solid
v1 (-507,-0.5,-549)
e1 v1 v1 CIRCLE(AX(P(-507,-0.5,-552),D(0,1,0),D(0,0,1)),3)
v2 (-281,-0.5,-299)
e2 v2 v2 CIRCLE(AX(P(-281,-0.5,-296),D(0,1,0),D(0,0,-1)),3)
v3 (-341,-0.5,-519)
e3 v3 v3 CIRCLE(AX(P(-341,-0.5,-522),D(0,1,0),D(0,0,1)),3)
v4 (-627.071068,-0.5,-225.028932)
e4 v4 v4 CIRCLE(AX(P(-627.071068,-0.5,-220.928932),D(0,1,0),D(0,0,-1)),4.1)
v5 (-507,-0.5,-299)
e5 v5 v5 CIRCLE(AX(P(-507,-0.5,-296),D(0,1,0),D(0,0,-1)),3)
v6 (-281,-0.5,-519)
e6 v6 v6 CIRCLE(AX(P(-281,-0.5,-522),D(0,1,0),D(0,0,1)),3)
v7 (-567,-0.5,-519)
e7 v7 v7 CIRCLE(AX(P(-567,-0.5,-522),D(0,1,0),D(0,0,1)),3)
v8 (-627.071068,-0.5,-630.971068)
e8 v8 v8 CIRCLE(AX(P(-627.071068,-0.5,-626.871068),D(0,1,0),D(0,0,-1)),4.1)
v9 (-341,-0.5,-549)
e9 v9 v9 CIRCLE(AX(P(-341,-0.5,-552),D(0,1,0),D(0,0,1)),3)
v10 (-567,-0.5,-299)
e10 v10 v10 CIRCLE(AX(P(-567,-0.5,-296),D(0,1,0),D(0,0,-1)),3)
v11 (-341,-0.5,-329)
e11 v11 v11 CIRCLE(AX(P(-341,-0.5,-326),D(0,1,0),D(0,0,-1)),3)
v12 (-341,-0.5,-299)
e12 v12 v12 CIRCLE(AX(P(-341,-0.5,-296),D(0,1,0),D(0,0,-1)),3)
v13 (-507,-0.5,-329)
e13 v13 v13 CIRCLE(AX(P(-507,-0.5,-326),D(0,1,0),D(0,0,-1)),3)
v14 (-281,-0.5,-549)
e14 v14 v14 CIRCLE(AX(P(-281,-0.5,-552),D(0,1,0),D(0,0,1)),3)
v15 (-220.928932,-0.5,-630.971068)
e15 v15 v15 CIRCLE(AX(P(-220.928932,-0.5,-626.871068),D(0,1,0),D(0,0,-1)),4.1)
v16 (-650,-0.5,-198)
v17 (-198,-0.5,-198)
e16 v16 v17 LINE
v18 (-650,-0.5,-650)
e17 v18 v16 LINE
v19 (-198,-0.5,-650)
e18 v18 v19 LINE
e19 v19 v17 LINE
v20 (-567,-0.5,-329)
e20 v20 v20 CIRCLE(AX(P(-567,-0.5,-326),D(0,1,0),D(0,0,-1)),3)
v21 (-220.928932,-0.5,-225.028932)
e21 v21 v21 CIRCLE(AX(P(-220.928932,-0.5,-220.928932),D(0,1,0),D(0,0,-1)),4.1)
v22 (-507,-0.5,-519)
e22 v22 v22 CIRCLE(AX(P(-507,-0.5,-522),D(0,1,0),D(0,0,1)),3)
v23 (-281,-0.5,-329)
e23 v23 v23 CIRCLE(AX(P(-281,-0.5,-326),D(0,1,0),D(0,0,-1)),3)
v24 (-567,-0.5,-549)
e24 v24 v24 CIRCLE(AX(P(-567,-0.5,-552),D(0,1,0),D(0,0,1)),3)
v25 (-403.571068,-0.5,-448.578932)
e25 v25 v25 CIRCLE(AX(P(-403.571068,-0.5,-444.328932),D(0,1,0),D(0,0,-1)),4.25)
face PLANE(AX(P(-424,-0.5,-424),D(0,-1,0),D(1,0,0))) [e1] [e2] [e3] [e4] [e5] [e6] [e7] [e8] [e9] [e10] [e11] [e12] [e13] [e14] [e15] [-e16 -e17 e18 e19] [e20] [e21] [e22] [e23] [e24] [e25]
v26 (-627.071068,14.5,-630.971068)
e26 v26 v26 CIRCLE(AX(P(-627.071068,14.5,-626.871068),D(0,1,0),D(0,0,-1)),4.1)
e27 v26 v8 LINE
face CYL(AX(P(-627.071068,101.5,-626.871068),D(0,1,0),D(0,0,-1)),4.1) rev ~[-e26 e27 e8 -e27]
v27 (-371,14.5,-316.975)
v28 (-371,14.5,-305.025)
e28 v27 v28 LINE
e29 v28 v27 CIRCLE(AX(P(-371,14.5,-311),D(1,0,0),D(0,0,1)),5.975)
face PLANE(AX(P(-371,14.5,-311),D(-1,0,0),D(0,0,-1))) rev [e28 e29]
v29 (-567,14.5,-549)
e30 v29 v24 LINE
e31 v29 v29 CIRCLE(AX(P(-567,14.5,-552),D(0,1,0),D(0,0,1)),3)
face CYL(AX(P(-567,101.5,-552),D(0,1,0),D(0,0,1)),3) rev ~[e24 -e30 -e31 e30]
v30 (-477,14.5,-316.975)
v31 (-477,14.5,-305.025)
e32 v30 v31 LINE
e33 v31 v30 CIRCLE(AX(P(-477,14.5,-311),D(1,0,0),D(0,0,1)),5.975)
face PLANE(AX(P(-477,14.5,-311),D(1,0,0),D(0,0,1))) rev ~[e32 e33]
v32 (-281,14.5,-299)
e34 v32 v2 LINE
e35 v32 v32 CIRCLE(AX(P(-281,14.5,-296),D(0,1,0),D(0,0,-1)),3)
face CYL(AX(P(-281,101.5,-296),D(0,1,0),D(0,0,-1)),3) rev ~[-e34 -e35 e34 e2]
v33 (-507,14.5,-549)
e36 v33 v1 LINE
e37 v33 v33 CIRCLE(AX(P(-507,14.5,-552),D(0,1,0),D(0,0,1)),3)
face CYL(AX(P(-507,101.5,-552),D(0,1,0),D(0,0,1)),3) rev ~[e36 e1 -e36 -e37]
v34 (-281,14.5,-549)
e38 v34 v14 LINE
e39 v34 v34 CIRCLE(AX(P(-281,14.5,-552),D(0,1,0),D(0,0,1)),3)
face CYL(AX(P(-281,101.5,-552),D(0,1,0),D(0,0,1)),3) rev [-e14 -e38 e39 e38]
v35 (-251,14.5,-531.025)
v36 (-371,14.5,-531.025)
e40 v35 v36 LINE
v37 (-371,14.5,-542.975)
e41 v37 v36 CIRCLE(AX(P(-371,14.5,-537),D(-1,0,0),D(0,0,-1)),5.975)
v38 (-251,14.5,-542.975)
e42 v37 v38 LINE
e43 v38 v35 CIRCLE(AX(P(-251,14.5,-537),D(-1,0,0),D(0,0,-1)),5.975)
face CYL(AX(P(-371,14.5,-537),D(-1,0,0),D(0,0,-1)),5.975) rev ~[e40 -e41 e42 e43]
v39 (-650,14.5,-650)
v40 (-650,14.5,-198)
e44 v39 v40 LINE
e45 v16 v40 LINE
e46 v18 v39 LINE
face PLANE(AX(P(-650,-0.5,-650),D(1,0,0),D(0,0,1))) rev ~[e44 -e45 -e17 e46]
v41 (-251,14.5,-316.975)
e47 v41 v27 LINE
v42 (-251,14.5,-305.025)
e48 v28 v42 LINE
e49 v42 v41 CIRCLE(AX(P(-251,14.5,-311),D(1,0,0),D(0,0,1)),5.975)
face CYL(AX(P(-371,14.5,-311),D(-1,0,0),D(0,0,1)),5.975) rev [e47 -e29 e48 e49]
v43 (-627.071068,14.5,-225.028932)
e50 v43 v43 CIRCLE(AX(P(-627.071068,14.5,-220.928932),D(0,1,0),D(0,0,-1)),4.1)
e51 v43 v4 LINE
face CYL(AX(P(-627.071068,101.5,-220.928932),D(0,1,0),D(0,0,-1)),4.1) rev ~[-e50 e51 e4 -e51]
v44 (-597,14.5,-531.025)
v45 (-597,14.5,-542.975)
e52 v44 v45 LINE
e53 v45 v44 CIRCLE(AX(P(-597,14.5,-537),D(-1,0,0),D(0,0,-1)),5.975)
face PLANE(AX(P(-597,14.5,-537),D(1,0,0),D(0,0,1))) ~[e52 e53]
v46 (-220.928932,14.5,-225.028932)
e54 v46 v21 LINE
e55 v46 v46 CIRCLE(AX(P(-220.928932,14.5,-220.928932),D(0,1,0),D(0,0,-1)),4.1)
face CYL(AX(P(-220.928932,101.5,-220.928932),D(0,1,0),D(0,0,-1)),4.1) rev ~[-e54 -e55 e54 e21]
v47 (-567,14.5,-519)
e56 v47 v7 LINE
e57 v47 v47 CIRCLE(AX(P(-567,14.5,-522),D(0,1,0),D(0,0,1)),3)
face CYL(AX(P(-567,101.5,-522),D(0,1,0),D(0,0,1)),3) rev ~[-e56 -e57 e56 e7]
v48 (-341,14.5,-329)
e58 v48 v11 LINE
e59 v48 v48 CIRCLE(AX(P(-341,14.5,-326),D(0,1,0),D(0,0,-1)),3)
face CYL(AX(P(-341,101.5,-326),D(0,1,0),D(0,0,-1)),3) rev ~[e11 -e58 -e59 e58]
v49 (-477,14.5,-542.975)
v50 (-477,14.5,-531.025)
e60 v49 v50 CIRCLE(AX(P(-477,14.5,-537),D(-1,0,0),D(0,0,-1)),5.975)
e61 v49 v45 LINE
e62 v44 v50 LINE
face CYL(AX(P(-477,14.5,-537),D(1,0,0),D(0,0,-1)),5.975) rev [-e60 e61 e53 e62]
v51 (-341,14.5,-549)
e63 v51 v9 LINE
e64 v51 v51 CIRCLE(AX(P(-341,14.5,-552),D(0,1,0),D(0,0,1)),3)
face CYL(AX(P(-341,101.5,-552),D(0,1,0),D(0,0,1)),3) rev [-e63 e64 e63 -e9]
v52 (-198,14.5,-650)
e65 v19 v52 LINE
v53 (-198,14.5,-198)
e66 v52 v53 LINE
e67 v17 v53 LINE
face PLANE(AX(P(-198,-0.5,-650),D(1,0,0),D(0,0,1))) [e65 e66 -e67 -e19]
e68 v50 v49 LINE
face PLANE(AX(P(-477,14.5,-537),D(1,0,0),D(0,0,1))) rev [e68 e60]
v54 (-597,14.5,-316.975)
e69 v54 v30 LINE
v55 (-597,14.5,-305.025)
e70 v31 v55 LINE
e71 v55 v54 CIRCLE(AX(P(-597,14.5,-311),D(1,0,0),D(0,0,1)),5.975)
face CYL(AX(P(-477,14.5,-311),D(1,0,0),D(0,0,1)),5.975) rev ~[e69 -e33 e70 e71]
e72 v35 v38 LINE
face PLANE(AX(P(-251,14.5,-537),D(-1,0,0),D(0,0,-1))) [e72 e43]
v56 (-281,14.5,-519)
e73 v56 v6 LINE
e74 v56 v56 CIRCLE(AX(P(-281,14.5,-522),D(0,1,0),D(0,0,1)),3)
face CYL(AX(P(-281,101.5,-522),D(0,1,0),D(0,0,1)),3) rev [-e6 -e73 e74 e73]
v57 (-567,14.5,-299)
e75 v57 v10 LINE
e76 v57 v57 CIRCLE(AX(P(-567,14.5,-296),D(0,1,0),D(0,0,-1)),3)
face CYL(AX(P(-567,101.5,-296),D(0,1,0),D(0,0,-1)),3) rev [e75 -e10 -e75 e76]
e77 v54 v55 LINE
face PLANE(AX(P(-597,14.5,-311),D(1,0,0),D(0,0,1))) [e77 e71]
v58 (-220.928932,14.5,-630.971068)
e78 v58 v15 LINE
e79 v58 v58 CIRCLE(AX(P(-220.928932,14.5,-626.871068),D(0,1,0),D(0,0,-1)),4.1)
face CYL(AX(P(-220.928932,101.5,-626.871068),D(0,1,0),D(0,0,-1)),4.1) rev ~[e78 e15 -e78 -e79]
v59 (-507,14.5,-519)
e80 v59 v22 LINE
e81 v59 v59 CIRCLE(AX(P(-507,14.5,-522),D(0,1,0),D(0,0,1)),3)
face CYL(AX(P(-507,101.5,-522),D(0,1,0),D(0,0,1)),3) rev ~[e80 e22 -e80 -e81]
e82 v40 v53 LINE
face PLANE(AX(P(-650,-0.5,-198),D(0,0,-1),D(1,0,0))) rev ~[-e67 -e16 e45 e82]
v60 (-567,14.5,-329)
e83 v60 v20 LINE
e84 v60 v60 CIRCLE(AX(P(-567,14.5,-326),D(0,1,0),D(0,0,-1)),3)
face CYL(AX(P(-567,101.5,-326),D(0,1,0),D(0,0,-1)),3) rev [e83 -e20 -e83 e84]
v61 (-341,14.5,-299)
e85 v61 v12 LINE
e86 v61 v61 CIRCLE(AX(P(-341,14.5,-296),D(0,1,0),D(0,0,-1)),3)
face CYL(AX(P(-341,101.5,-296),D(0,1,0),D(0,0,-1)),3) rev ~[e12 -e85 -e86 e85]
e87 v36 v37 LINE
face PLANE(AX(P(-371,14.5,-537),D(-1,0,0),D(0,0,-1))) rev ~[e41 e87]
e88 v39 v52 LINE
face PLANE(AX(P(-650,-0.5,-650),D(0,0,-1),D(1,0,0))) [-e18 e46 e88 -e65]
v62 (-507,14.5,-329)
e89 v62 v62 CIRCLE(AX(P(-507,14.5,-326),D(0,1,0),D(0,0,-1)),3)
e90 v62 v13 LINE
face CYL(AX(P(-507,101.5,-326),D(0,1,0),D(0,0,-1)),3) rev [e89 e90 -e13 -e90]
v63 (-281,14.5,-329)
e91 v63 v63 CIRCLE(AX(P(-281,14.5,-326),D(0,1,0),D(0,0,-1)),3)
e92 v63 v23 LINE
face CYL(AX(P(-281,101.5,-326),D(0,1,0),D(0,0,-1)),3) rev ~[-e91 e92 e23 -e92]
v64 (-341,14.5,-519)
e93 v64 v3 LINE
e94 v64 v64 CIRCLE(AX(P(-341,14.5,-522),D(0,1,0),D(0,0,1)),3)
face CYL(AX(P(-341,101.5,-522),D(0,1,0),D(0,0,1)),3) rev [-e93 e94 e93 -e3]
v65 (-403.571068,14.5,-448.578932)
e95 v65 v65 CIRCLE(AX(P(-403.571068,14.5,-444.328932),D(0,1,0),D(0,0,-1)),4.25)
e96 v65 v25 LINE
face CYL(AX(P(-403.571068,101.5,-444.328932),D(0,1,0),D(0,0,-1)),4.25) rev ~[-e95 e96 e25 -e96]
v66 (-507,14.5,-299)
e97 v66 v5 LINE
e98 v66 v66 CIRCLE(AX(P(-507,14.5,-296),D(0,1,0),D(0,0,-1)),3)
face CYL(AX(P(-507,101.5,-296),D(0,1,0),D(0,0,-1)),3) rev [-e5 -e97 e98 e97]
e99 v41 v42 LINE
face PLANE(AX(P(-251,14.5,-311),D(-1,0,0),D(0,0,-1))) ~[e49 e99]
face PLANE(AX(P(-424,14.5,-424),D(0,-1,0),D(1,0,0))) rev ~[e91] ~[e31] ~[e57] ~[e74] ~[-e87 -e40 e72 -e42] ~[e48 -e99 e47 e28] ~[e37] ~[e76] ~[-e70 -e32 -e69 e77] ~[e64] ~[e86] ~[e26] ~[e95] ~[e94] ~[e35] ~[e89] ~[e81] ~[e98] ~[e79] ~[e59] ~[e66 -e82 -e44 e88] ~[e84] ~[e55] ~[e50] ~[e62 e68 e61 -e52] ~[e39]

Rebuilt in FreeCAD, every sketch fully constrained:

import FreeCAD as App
import Part
import Sketcher
Q = App.Units.Quantity

doc = App.newDocument("Part")
body = doc.addObject("PartDesign::Body", "Body")

# Sketch on XZ plane
sketch1 = doc.addObject("Sketcher::SketchObject", "Sketch")
body.addObject(sketch1)
sketch1.AttachmentSupport = (doc.XZ_Plane, [""])
sketch1.MapMode = "FlatFace"
sketch1.AttachmentOffset = App.Placement(App.Vector(0, 0, 0.5), App.Rotation())
sketch1.addGeometry([
    Part.LineSegment(App.Vector(-650, -198, 0), App.Vector(-650, -650, 0)),
    Part.LineSegment(App.Vector(-650, -650, 0), App.Vector(-198, -650, 0)),
    Part.LineSegment(App.Vector(-198, -650, 0), App.Vector(-198, -198, 0)),
    Part.LineSegment(App.Vector(-198, -198, 0), App.Vector(-650, -198, 0)),
], False)
sketch1.addConstraint([
    Sketcher.Constraint("Coincident", 0, 2, 1, 1),
    Sketcher.Constraint("Coincident", 1, 2, 2, 1),
    Sketcher.Constraint("Coincident", 2, 2, 3, 1),
    Sketcher.Constraint("Coincident", 3, 2, 0, 1),
    Sketcher.Constraint("Vertical", 0),
    Sketcher.Constraint("Horizontal", 1),
    Sketcher.Constraint("Vertical", 2),
    Sketcher.Constraint("Horizontal", 3),
    Sketcher.Constraint("Equal", 3, 0),
    Sketcher.Constraint("DistanceX", 1, 1, 1, 2, Q("452 mm")),
    Sketcher.Constraint("DistanceX", 0, 2, -1, 1, Q("650 mm")),
    Sketcher.Constraint("DistanceY", 0, 2, -1, 1, Q("650 mm")),
])
pad1 = doc.addObject("PartDesign::Pad", "Pad")
body.addObject(pad1)
pad1.Profile = sketch1
pad1.Length = 15
pad1.Reversed = True

# Sketch on YZ plane
sketch2 = doc.addObject("Sketcher::SketchObject", "Sketch001")
body.addObject(sketch2)
sketch2.AttachmentSupport = (doc.YZ_Plane, [""])
sketch2.MapMode = "FlatFace"
sketch2.AttachmentOffset = App.Placement(App.Vector(0, 0, -477), App.Rotation())
sketch2.addGeometry(Part.Circle(App.Vector(14, -311, 0), App.Vector(0, 0, 1), 6), False)
sketch2.addConstraint([
    Sketcher.Constraint("Diameter", 0, Q("11.95 mm")),
    Sketcher.Constraint("DistanceY", 0, 3, -1, 1, Q("311 mm")),
    Sketcher.Constraint("DistanceX", -1, 1, 0, 3, Q("14.5 mm")),
])
pocket1 = doc.addObject("PartDesign::Pocket", "Pocket")
body.addObject(pocket1)
pocket1.Profile = sketch2
pocket1.Length = 120
doc.recompute()

datumplane = doc.addObject("PartDesign::Plane", "DatumPlane")
body.addObject(datumplane)
datumplane.AttachmentSupport = (doc.XY_Plane, [""])
datumplane.MapMode = "FlatFace"
datumplane.AttachmentOffset = App.Placement(App.Vector(0, 0, -424), App.Rotation())
mirrored = doc.addObject("PartDesign::Mirrored", "Mirrored")
body.addObject(mirrored)
mirrored.Originals = [pocket1]
mirrored.MirrorPlane = (datumplane, [""])
body.Tip = mirrored
doc.recompute()

datumplane2 = doc.addObject("PartDesign::Plane", "DatumPlane001")
body.addObject(datumplane2)
datumplane2.AttachmentSupport = (doc.YZ_Plane, [""])
datumplane2.MapMode = "FlatFace"
datumplane2.AttachmentOffset = App.Placement(App.Vector(0, 0, -424), App.Rotation())
mirrored2 = doc.addObject("PartDesign::Mirrored", "Mirrored001")
body.addObject(mirrored2)
mirrored2.Originals = [pocket1]
mirrored2.MirrorPlane = (datumplane2, [""])
body.Tip = mirrored2

# Sketch on YZ plane
sketch3 = doc.addObject("Sketcher::SketchObject", "Sketch002")
body.addObject(sketch3)
sketch3.AttachmentSupport = (doc.YZ_Plane, [""])
sketch3.MapMode = "FlatFace"
sketch3.AttachmentOffset = App.Placement(App.Vector(0, 0, -371), App.Rotation())
sketch3.addGeometry(Part.Circle(App.Vector(14, -537, 0), App.Vector(0, 0, 1), 6), False)
sketch3.addConstraint([
    Sketcher.Constraint("Diameter", 0, Q("11.95 mm")),
    Sketcher.Constraint("DistanceY", 0, 3, -1, 1, Q("537 mm")),
    Sketcher.Constraint("DistanceX", -1, 1, 0, 3, Q("14.5 mm")),
])
pocket2 = doc.addObject("PartDesign::Pocket", "Pocket001")
body.addObject(pocket2)
pocket2.Profile = sketch3
pocket2.Length = 120
pocket2.Reversed = True

# Sketch on XZ plane
sketch4 = doc.addObject("Sketcher::SketchObject", "Sketch003")
body.addObject(sketch4)
sketch4.AttachmentSupport = (doc.XZ_Plane, [""])
sketch4.MapMode = "FlatFace"
sketch4.AttachmentOffset = App.Placement(App.Vector(0, 0, -101.5), App.Rotation())
sketch4.addGeometry([
    Part.Circle(App.Vector(-281, -326, 0), App.Vector(0, 0, 1), 3),
    Part.Circle(App.Vector(-341, -326, 0), App.Vector(0, 0, 1), 3),
    Part.Circle(App.Vector(-341, -296, 0), App.Vector(0, 0, 1), 3),
    Part.Circle(App.Vector(-281, -296, 0), App.Vector(0, 0, 1), 3),
], False)
sketch4.addConstraint([
    Sketcher.Constraint("Equal", 0, 1),
    Sketcher.Constraint("Equal", 1, 2),
    Sketcher.Constraint("Equal", 2, 3),
    Sketcher.Constraint("Horizontal", 0, 3, 1, 3),
    Sketcher.Constraint("Horizontal", 2, 3, 3, 3),
    Sketcher.Constraint("Vertical", 1, 3, 2, 3),
    Sketcher.Constraint("Vertical", 0, 3, 3, 3),
    Sketcher.Constraint("Diameter", 0, Q("6 mm")),
    Sketcher.Constraint("DistanceX", 0, 3, -1, 1, Q("281 mm")),
    Sketcher.Constraint("DistanceY", 0, 3, -1, 1, Q("326 mm")),
    Sketcher.Constraint("DistanceX", 1, 3, -1, 1, Q("341 mm")),
    Sketcher.Constraint("DistanceY", 2, 3, -1, 1, Q("296 mm")),
])
pocket3 = doc.addObject("PartDesign::Pocket", "Pocket002")
body.addObject(pocket3)
pocket3.Profile = sketch4
pocket3.Length = 120
pocket3.Reversed = True

# Sketch on XZ plane
sketch5 = doc.addObject("Sketcher::SketchObject", "Sketch004")
body.addObject(sketch5)
sketch5.AttachmentSupport = (doc.XZ_Plane, [""])
sketch5.MapMode = "FlatFace"
sketch5.AttachmentOffset = App.Placement(App.Vector(0, 0, -101.5), App.Rotation())
sketch5.addGeometry([
    Part.Circle(App.Vector(-627.1, -626.9, 0), App.Vector(0, 0, 1), 4.1),  # 0
    Part.Circle(App.Vector(-220.9, -626.9, 0), App.Vector(0, 0, 1), 4.1),  # 1
    Part.Circle(App.Vector(-403.6, -444.3, 0), App.Vector(0, 0, 1), 4.2),  # 2
    Part.Circle(App.Vector(-627.1, -220.9, 0), App.Vector(0, 0, 1), 4.1),  # 3
    Part.Circle(App.Vector(-220.9, -220.9, 0), App.Vector(0, 0, 1), 4.1),  # 4
], False)
sketch5.addConstraint([
    Sketcher.Constraint("Equal", 0, 1),
    Sketcher.Constraint("Equal", 1, 3),
    Sketcher.Constraint("Equal", 3, 4),
    Sketcher.Constraint("Horizontal", 0, 3, 1, 3),
    Sketcher.Constraint("Horizontal", 3, 3, 4, 3),
    Sketcher.Constraint("Vertical", 0, 3, 3, 3),
    Sketcher.Constraint("Vertical", 1, 3, 4, 3),
    Sketcher.Constraint("Diameter", 0, Q("8.2 mm")),
    Sketcher.Constraint("Diameter", 2, Q("8.5 mm")),
    Sketcher.Constraint("DistanceX", 0, 3, 2, 3, Q("223.5 mm")),
    Sketcher.Constraint("DistanceY", 2, 3, 3, 3, Q("223.4 mm")),
    Sketcher.Constraint("DistanceX", 0, 3, -1, 1, Q("627.071068 mm")),
    Sketcher.Constraint("DistanceY", 0, 3, -1, 1, Q("626.871068 mm")),
    Sketcher.Constraint("DistanceX", 1, 3, -1, 1, Q("220.928932 mm")),
    Sketcher.Constraint("DistanceY", 2, 3, -1, 1, Q("444.328932 mm")),
])
pocket4 = doc.addObject("PartDesign::Pocket", "Pocket003")
body.addObject(pocket4)
pocket4.Profile = sketch5
pocket4.Length = 120
pocket4.Reversed = True
doc.recompute()

datumplane3 = doc.addObject("PartDesign::Plane", "DatumPlane002")
body.addObject(datumplane3)
datumplane3.AttachmentSupport = (doc.YZ_Plane, [""])
datumplane3.MapMode = "FlatFace"
datumplane3.AttachmentOffset = App.Placement(App.Vector(0, 0, -424), App.Rotation())
mirrored3 = doc.addObject("PartDesign::Mirrored", "Mirrored002")
body.addObject(mirrored3)
mirrored3.Originals = [pocket3]
mirrored3.MirrorPlane = (datumplane3, [""])
body.Tip = mirrored3
doc.recompute()

datumplane4 = doc.addObject("PartDesign::Plane", "DatumPlane003")
body.addObject(datumplane4)
datumplane4.AttachmentSupport = (doc.XY_Plane, [""])
datumplane4.MapMode = "FlatFace"
datumplane4.AttachmentOffset = App.Placement(App.Vector(0, 0, -424), App.Rotation())
mirrored4 = doc.addObject("PartDesign::Mirrored", "Mirrored003")
body.addObject(mirrored4)
mirrored4.Originals = [pocket3]
mirrored4.MirrorPlane = (datumplane4, [""])
body.Tip = mirrored4

# Sketch on XZ plane
sketch6 = doc.addObject("Sketcher::SketchObject", "Sketch005")
body.addObject(sketch6)
sketch6.AttachmentSupport = (doc.XZ_Plane, [""])
sketch6.MapMode = "FlatFace"
sketch6.AttachmentOffset = App.Placement(App.Vector(0, 0, -101.5), App.Rotation())
sketch6.addGeometry([
    Part.Circle(App.Vector(-567, -522, 0), App.Vector(0, 0, 1), 3),
    Part.Circle(App.Vector(-507, -522, 0), App.Vector(0, 0, 1), 3),
    Part.Circle(App.Vector(-507, -552, 0), App.Vector(0, 0, 1), 3),
    Part.Circle(App.Vector(-567, -552, 0), App.Vector(0, 0, 1), 3),
], False)
sketch6.addConstraint([
    Sketcher.Constraint("Equal", 0, 1),
    Sketcher.Constraint("Equal", 1, 2),
    Sketcher.Constraint("Equal", 2, 3),
    Sketcher.Constraint("Horizontal", 0, 3, 1, 3),
    Sketcher.Constraint("Horizontal", 2, 3, 3, 3),
    Sketcher.Constraint("Vertical", 1, 3, 2, 3),
    Sketcher.Constraint("Vertical", 0, 3, 3, 3),
    Sketcher.Constraint("Diameter", 0, Q("6 mm")),
    Sketcher.Constraint("DistanceX", 0, 3, -1, 1, Q("567 mm")),
    Sketcher.Constraint("DistanceY", 0, 3, -1, 1, Q("522 mm")),
    Sketcher.Constraint("DistanceX", 1, 3, -1, 1, Q("507 mm")),
    Sketcher.Constraint("DistanceY", 2, 3, -1, 1, Q("552 mm")),
])
pocket5 = doc.addObject("PartDesign::Pocket", "Pocket004")
body.addObject(pocket5)
pocket5.Profile = sketch6
pocket5.Length = 120
pocket5.Reversed = True

doc.recompute()
